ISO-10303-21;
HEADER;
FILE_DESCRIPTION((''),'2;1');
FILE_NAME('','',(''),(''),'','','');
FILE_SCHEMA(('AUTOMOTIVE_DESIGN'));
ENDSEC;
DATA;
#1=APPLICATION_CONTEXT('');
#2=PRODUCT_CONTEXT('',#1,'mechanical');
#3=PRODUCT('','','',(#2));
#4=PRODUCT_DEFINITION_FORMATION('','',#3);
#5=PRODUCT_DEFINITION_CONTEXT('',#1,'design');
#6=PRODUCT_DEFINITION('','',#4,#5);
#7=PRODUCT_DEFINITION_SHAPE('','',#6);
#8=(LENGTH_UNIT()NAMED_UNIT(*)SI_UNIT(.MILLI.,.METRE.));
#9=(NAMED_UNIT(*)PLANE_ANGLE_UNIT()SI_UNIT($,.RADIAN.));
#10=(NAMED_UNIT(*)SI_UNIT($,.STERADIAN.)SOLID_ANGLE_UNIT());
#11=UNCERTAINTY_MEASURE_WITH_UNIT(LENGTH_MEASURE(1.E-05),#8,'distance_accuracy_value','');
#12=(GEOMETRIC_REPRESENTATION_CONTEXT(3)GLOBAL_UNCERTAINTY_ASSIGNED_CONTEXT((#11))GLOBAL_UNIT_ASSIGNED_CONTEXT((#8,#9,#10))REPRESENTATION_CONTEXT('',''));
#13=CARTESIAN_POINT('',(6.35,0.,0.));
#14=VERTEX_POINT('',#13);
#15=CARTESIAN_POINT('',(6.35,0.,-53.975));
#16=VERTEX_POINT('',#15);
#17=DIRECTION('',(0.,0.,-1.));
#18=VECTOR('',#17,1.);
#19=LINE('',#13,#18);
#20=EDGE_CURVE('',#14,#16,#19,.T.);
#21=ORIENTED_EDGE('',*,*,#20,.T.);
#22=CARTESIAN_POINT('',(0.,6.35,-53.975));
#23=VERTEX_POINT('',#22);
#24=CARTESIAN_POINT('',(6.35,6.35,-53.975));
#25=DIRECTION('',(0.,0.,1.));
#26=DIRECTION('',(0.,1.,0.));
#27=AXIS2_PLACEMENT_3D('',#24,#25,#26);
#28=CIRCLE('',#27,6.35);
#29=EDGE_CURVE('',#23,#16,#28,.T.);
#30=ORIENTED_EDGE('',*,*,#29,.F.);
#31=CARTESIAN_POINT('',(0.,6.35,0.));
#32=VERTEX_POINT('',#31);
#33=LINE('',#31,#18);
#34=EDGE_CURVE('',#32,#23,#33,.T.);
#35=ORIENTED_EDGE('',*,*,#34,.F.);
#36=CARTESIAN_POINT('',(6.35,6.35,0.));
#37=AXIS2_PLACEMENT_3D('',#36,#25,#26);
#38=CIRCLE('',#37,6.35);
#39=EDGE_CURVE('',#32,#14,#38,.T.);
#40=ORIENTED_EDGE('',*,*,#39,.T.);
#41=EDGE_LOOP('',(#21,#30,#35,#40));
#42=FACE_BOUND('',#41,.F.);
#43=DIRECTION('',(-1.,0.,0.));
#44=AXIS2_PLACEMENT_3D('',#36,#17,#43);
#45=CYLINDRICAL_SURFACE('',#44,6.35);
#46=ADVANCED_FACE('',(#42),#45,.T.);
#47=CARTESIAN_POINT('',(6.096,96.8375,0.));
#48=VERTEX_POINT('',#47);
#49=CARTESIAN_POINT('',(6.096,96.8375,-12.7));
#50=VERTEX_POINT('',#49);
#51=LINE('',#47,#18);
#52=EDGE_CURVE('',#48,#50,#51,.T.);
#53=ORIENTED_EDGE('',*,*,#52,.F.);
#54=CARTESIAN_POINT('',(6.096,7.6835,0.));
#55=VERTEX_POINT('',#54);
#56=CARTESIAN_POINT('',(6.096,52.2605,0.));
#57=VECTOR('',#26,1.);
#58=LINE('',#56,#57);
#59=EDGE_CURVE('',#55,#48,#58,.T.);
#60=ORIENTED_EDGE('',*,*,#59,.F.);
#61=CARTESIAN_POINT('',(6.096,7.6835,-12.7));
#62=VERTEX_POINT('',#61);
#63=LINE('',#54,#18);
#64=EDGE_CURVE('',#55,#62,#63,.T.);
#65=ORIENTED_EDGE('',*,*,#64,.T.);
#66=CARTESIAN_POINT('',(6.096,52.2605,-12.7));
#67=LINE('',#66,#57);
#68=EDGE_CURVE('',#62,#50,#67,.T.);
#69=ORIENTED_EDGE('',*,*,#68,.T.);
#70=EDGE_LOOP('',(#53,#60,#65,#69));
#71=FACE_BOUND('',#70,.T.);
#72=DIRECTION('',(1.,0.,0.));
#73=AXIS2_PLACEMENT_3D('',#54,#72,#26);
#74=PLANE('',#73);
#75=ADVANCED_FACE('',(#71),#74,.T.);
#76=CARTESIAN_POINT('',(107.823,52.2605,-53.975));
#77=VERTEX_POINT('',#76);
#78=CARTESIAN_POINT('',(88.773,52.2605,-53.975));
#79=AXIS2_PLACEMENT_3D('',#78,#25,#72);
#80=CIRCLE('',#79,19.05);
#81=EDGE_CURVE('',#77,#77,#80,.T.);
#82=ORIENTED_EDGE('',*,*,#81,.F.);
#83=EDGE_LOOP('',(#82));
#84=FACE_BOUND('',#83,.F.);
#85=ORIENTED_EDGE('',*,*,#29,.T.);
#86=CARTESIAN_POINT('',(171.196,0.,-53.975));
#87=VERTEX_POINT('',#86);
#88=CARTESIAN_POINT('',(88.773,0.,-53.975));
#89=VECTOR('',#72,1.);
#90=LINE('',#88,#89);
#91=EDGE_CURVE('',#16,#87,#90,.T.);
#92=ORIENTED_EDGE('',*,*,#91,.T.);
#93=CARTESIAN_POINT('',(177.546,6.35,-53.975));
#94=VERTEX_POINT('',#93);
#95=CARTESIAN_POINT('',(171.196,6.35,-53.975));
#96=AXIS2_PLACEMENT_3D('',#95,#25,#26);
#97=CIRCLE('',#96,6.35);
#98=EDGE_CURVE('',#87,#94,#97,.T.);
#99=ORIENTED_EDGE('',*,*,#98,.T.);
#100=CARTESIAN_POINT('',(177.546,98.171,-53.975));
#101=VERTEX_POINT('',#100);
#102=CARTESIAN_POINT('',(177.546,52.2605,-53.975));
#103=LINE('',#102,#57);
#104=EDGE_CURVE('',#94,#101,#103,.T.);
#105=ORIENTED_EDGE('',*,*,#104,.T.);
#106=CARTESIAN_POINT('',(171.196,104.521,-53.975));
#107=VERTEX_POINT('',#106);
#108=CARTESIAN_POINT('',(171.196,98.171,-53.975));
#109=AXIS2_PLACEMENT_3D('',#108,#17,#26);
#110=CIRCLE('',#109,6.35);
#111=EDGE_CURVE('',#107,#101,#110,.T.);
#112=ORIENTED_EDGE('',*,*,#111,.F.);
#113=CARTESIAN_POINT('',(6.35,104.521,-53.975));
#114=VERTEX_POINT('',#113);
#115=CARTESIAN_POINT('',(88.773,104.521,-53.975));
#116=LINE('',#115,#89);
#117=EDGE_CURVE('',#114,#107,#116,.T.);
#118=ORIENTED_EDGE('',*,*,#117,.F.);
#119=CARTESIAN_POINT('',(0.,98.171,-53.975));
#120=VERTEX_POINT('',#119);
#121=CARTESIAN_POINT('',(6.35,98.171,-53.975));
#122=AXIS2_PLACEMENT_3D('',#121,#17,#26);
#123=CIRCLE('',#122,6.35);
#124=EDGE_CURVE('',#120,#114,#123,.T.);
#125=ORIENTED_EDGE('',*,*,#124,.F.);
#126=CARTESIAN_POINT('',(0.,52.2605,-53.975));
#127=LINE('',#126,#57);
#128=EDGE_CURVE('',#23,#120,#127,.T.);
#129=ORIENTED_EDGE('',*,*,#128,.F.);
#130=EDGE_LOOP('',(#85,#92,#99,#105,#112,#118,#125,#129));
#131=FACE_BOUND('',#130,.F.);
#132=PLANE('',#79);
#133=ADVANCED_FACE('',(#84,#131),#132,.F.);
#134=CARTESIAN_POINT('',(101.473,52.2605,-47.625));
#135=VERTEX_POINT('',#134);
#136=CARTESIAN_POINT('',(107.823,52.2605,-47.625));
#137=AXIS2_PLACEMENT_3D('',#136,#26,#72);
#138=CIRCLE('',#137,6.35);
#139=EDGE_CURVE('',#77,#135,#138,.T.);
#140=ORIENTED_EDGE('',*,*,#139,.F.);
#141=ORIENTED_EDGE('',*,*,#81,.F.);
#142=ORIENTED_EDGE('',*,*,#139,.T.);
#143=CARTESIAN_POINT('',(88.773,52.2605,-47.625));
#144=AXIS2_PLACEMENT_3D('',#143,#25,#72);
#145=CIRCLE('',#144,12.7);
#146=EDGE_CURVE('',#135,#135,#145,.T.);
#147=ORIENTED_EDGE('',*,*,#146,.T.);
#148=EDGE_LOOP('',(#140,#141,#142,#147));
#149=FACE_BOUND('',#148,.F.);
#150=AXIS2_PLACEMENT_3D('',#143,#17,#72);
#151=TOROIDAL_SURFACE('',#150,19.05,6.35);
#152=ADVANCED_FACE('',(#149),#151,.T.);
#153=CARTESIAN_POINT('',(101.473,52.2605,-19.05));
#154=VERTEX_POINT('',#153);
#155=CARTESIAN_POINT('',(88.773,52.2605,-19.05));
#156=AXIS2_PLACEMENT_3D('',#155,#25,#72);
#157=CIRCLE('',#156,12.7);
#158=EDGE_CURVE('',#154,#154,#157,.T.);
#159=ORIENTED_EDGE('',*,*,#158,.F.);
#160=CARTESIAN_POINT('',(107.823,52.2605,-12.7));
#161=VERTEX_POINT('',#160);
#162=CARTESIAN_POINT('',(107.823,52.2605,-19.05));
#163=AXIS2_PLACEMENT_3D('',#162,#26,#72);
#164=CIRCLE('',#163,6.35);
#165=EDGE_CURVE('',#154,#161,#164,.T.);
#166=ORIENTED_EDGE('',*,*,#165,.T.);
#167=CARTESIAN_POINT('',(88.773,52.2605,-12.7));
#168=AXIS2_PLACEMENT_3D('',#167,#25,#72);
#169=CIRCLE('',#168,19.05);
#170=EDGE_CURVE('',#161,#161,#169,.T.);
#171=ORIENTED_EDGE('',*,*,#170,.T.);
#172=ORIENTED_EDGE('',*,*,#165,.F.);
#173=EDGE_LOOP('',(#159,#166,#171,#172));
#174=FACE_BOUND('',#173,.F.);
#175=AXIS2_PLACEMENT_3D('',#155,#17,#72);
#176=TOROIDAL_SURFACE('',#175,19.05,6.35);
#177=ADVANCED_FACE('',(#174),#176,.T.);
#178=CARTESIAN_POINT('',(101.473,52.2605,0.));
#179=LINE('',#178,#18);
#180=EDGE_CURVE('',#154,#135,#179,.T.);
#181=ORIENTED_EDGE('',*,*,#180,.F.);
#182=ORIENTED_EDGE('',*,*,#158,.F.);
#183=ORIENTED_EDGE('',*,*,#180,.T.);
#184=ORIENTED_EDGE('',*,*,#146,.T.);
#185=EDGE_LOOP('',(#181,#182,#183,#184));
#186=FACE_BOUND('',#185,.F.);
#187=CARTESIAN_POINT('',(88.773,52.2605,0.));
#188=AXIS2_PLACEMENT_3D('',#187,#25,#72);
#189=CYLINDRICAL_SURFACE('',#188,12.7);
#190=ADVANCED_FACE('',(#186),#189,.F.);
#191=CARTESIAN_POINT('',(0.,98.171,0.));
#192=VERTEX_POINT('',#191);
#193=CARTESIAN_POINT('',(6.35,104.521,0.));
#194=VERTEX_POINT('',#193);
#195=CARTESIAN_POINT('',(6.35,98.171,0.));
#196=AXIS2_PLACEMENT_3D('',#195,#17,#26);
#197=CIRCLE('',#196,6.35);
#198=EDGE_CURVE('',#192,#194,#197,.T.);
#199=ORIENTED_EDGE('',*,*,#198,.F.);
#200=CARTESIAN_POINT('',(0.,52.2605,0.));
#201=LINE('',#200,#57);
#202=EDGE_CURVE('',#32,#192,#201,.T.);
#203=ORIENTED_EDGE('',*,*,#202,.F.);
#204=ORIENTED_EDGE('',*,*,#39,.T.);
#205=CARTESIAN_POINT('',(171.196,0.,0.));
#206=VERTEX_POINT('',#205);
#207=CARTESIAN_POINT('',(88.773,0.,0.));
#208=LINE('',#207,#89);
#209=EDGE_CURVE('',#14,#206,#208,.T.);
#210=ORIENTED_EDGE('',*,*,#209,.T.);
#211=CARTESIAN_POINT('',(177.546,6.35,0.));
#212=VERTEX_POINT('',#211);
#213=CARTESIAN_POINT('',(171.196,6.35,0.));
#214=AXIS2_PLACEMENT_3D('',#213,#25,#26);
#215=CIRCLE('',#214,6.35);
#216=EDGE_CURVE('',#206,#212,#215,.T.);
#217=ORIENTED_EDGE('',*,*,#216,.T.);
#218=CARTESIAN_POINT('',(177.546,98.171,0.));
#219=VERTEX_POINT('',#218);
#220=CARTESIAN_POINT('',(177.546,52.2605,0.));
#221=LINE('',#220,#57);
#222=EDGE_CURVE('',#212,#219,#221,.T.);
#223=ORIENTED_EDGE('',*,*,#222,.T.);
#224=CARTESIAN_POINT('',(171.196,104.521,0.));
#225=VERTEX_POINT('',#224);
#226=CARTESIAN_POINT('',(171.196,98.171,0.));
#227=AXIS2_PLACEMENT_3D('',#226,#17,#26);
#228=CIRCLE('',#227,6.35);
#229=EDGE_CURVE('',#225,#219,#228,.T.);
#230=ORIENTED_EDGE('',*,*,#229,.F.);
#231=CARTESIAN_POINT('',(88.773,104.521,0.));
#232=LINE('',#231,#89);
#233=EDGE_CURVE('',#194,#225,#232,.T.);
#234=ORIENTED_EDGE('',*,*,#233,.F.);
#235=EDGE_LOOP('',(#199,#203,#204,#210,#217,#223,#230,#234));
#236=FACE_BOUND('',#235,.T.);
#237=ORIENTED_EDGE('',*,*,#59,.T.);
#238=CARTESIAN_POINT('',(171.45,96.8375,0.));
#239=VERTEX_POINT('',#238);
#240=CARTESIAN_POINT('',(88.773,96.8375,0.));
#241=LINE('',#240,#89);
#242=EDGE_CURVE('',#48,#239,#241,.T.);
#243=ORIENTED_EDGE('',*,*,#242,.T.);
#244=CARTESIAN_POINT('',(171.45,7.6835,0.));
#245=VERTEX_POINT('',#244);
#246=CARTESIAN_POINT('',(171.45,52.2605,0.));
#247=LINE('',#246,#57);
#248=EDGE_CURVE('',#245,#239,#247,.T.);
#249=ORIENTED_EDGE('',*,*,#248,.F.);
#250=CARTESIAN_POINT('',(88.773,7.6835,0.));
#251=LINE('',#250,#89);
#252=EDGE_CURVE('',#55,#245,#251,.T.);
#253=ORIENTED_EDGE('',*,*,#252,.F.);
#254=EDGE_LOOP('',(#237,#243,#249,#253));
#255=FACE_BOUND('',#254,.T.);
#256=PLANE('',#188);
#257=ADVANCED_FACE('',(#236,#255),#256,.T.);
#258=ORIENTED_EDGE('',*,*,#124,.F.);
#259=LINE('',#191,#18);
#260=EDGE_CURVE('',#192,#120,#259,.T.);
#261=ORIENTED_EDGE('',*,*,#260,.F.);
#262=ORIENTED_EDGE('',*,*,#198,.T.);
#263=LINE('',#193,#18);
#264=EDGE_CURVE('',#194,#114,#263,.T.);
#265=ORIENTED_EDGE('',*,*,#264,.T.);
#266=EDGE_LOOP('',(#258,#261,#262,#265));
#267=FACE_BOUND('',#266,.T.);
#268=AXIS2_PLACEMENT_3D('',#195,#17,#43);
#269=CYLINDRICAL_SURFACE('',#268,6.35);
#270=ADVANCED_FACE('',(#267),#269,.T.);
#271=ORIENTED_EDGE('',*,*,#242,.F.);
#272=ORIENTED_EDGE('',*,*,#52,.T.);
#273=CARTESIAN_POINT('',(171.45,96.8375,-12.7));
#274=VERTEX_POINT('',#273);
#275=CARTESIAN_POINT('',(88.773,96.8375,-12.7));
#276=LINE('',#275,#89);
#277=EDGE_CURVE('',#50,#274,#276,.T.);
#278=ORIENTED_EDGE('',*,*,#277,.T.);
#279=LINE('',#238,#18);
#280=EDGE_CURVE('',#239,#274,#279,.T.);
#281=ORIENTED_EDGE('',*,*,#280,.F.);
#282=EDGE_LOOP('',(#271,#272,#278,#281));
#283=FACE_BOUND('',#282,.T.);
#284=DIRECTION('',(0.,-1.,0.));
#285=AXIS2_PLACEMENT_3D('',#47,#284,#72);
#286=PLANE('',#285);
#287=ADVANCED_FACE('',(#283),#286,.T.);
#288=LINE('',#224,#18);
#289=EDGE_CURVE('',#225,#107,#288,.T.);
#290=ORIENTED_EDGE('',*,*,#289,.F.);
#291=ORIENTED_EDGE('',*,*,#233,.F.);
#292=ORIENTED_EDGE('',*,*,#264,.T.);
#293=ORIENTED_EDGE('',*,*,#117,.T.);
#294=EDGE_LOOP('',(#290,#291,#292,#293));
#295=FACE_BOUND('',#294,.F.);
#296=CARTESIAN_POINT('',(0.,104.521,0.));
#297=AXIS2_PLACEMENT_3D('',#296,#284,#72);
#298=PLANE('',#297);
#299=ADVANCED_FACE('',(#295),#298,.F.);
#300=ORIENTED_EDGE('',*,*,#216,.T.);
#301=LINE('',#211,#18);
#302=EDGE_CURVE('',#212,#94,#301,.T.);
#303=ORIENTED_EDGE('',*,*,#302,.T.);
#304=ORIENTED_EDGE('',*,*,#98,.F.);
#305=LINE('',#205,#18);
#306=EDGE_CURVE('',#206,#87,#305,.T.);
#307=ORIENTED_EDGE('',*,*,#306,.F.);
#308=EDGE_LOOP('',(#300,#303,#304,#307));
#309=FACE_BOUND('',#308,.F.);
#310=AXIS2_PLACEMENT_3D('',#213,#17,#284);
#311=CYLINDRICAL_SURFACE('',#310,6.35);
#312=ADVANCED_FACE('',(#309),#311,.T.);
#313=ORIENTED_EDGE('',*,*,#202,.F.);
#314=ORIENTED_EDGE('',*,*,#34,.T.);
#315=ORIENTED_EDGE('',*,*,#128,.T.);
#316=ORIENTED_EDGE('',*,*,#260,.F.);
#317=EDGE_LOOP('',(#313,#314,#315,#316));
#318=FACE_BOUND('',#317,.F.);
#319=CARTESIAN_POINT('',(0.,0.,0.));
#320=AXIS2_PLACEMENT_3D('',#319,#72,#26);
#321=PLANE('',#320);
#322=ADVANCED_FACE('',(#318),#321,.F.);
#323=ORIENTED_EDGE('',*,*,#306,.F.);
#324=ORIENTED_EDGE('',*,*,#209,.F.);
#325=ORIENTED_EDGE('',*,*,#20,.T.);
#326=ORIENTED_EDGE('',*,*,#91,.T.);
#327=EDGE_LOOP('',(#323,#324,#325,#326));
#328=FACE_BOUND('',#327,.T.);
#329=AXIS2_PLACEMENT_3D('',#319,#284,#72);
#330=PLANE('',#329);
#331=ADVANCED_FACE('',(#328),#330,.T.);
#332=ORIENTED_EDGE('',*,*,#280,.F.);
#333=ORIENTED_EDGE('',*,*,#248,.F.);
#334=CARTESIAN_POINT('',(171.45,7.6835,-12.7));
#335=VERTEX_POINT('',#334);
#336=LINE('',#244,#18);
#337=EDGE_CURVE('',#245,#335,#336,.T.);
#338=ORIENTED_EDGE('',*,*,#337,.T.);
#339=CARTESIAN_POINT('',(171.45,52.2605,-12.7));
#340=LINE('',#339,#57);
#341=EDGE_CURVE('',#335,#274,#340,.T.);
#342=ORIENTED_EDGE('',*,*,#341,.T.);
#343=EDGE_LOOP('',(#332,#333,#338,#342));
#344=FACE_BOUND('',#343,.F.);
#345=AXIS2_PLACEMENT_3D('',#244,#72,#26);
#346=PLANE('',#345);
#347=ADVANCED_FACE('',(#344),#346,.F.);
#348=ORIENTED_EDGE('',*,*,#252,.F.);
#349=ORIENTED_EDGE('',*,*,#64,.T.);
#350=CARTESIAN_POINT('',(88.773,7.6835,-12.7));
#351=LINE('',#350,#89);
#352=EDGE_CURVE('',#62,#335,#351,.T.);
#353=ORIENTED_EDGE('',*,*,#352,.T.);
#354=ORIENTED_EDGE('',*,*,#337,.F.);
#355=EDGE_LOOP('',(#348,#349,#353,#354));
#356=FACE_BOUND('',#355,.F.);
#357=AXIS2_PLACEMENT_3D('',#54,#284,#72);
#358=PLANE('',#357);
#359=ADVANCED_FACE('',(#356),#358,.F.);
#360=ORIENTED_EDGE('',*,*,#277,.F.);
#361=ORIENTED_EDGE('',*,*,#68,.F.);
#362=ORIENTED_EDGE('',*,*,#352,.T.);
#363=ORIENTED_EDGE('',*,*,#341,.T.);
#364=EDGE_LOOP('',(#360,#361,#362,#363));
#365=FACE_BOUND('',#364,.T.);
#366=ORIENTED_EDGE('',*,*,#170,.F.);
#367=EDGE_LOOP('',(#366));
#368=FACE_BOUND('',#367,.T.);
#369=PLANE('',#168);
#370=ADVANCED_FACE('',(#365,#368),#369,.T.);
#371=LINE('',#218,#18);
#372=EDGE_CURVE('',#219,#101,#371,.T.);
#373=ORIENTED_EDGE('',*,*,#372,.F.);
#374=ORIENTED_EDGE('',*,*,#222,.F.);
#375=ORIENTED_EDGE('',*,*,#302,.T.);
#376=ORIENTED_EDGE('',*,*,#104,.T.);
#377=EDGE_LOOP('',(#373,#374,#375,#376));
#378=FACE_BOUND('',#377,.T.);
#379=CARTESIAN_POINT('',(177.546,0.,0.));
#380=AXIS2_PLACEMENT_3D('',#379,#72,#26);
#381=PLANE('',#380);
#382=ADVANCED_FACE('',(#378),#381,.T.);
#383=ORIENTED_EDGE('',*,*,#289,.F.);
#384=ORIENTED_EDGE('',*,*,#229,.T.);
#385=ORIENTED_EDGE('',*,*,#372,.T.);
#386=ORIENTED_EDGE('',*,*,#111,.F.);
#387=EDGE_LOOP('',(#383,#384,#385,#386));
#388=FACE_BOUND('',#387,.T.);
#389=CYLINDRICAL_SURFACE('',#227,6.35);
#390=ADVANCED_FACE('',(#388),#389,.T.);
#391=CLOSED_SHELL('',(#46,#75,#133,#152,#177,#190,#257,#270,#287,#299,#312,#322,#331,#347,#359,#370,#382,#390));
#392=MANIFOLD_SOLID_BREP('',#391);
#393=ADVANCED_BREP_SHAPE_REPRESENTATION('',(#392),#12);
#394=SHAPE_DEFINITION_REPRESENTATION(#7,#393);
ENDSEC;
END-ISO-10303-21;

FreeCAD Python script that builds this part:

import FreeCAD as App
import Part
import Sketcher
Q = App.Units.Quantity


def edges_at(feature, points):
    """Names of the edges that pass closest to the given points."""
    edges = feature.Shape.Edges
    near = lambda p: min(range(len(edges)), key=lambda i: edges[i].distToShape(Part.Vertex(*p))[0])
    return sorted({f"Edge{near(p) + 1}" for p in points})


def add_polygon(sketch, points):
    """Adds a closed chain of lines whose ends are joined by coincident constraints."""
    first, n = sketch.GeometryCount, len(points)
    for a, b in zip(points, points[1:] + points[:1]):
        sketch.addGeometry(Part.LineSegment(App.Vector(*a, 0), App.Vector(*b, 0)), False)
    for i in range(n):
        sketch.addConstraint(Sketcher.Constraint("Coincident", first + i, 2, first + (i + 1) % n, 1))

doc = App.newDocument("Part")
body = doc.addObject("PartDesign::Body", "Body")

# Sketch on XY plane
sketch1 = body.newObject("Sketcher::SketchObject", "Sketch")
sketch1.AttachmentSupport = (doc.getObject("XY_Plane"), [""])
sketch1.MapMode = "FlatFace"
add_polygon(sketch1, [(0, 104.521), (0, 0), (177.546, 0), (177.546, 104.521)])  # lines 0-3
sketch1.addGeometry(Part.Circle(App.Vector(88.773, 52.2605, 0), App.Vector(0, 0, 1), 12.7), False)  # 4
sketch1.addConstraint(Sketcher.Constraint("Vertical", 0))
sketch1.addConstraint(Sketcher.Constraint("Horizontal", 1))
sketch1.addConstraint(Sketcher.Constraint("Vertical", 2))
sketch1.addConstraint(Sketcher.Constraint("Horizontal", 3))
sketch1.addConstraint(Sketcher.Constraint("Coincident", 0, 2, -1, 1))
sketch1.addConstraint(Sketcher.Constraint("Diameter", 4, Q("1 in")))
sketch1.addConstraint(Sketcher.Constraint("DistanceX", 1, 1, 1, 2, Q("6.99 in")))
sketch1.addConstraint(Sketcher.Constraint("DistanceY", 0, 2, 0, 1, Q("4.115 in")))
sketch1.addConstraint(Sketcher.Constraint("DistanceX", -1, 1, 4, 3, Q("3.495 in")))
sketch1.addConstraint(Sketcher.Constraint("DistanceY", -1, 1, 4, 3, Q("2.0575 in")))
pad1 = body.newObject("PartDesign::Pad", "Pad")
pad1.Profile = sketch1
pad1.Length = Q("2.125 in")
pad1.Reversed = True

# Sketch on XY plane
sketch2 = body.newObject("Sketcher::SketchObject", "Sketch001")
sketch2.AttachmentSupport = (doc.getObject("XY_Plane"), [""])
sketch2.MapMode = "FlatFace"
add_polygon(sketch2, [(6.096, 96.8375), (6.096, 7.6835), (171.45, 7.6835), (171.45, 96.8375)])  # lines 0-3
sketch2.addGeometry(Part.Circle(App.Vector(88.773, 52.2605, 0), App.Vector(0, 0, 1), 12.7), False)  # 4
sketch2.addConstraint(Sketcher.Constraint("Vertical", 0))
sketch2.addConstraint(Sketcher.Constraint("Horizontal", 1))
sketch2.addConstraint(Sketcher.Constraint("Vertical", 2))
sketch2.addConstraint(Sketcher.Constraint("Horizontal", 3))
sketch2.addConstraint(Sketcher.Constraint("Diameter", 4, Q("1 in")))
sketch2.addConstraint(Sketcher.Constraint("DistanceX", 1, 1, 1, 2, Q("6.51 in")))
sketch2.addConstraint(Sketcher.Constraint("DistanceY", 0, 2, 0, 1, Q("3.51 in")))
sketch2.addConstraint(Sketcher.Constraint("DistanceX", -1, 1, 0, 2, Q("0.24 in")))
sketch2.addConstraint(Sketcher.Constraint("DistanceX", -1, 1, 4, 3, Q("3.495 in")))
sketch2.addConstraint(Sketcher.Constraint("DistanceY", -1, 1, 2, 2, Q("3.8125 in")))
sketch2.addConstraint(Sketcher.Constraint("DistanceY", 0, 2, 4, 3, Q("1.755 in")))
pocket1 = body.newObject("PartDesign::Pocket", "Pocket")
pocket1.Profile = sketch2
pocket1.Length = Q("0.5 in")
doc.recompute()

fillet = body.newObject("PartDesign::Fillet", "Fillet")
fillet.Base = (pocket1, edges_at(pocket1, [
    (0, 0, -26.988),
    (177.546, 104.521, -26.988),
    (177.546, 0, -26.988),
    (0, 104.521, -26.988),
    (76.073, 52.261, -12.7),
    (76.073, 52.261, -53.975),
]))
fillet.Radius = Q("0.25 in")

doc.recompute()
